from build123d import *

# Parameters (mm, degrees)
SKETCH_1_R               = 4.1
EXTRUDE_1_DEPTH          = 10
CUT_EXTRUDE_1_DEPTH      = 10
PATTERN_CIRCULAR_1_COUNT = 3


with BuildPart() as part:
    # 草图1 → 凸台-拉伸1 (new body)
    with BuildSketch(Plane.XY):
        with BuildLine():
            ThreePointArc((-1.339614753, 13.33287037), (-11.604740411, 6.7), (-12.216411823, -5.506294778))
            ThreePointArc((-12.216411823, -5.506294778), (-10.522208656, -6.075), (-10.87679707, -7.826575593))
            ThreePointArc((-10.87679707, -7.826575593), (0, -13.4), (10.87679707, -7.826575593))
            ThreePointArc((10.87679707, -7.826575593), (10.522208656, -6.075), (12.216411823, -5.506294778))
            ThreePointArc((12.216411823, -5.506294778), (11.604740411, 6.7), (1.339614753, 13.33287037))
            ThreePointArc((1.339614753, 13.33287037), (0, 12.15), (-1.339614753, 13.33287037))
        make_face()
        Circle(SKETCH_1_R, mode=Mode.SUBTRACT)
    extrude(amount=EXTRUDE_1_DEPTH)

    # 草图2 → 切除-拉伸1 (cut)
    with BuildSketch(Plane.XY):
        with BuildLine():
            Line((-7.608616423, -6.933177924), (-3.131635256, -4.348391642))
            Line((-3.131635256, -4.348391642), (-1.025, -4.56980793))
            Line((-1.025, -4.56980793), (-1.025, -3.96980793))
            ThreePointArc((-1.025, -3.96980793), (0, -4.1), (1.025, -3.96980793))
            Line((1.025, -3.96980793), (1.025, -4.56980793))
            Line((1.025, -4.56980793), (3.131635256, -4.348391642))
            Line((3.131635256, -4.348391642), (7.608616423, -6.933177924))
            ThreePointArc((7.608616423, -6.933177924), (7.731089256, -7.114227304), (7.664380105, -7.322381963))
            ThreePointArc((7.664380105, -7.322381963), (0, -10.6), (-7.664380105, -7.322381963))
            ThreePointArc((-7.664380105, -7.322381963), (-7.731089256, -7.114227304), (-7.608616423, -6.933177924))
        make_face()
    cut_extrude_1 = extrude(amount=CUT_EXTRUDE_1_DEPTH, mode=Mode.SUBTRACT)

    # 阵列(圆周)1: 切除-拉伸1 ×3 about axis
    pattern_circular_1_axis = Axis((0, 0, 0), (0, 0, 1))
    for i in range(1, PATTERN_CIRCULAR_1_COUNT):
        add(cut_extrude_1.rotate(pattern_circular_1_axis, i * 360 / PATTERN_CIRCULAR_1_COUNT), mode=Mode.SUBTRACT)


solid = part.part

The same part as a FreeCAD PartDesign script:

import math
import FreeCAD as App
import Part
import Sketcher
from FreeCAD import Vector
Q = App.Units.Quantity

doc = App.newDocument("Part")
body = doc.addObject("PartDesign::Body", "Body")

sketch1 = body.newObject("Sketcher::SketchObject", "Sketch")
sketch1.AttachmentSupport = (doc.getObject("XY_Plane"), [""])
sketch1.MapMode = "FlatFace"
sketch1.addGeometry([
    Part.ArcOfCircle(Part.Circle(Vector(0, 0, 0), Vector(0, 0, 1), 13.4), math.radians(95.737515), math.radians(204.262485)),
    Part.ArcOfCircle(Part.Circle(Vector(-11.691343, -6.75, 0), Vector(0, 0, 1), 1.35), math.radians(-52.888553), math.radians(112.888553)),
    Part.ArcOfCircle(Part.Circle(Vector(0, 0, 0), Vector(0, 0, 1), 13.4), math.radians(-144.262485), math.radians(-35.737515)),
    Part.ArcOfCircle(Part.Circle(Vector(11.691343, -6.75, 0), Vector(0, 0, 1), 1.35), math.radians(67.111447), math.radians(232.888553)),
    Part.ArcOfCircle(Part.Circle(Vector(0, 0, 0), Vector(0, 0, 1), 13.4), math.radians(-24.262485), math.radians(84.262485)),
    Part.ArcOfCircle(Part.Circle(Vector(0, 13.5, 0), Vector(0, 0, 1), 1.35), math.radians(-172.888553), math.radians(-7.111447)),
    Part.Circle(Vector(0, 0, 0), Vector(0, 0, 1), 4.1),
], False)
sketch1.addConstraint([
    Sketcher.Constraint("Coincident", 0, 2, 1, 2),
    Sketcher.Constraint("Coincident", 1, 1, 2, 1),
    Sketcher.Constraint("Coincident", 2, 2, 3, 2),
    Sketcher.Constraint("Coincident", 3, 1, 4, 1),
    Sketcher.Constraint("Coincident", 4, 2, 5, 2),
    Sketcher.Constraint("Coincident", 5, 1, 0, 1),
    Sketcher.Constraint("Coincident", 0, 3, -1, 1),
    Sketcher.Constraint("Coincident", 2, 3, -1, 1),
    Sketcher.Constraint("Coincident", 4, 3, -1, 1),
    Sketcher.Constraint("Coincident", 6, 3, -1, 1),
    Sketcher.Constraint("Equal", 0, 2),
    Sketcher.Constraint("Equal", 1, 3),
    Sketcher.Constraint("Equal", 2, 4),
    Sketcher.Constraint("Equal", 3, 5),
    Sketcher.Constraint("Symmetric", 1, 3, 3, 3, -2),
    Sketcher.Constraint("PointOnObject", 5, 3, -2),
    Sketcher.Constraint("Diameter", 6, 8.2),
    Sketcher.Constraint("Radius", 0, 13.4),
    Sketcher.Constraint("Radius", 1, 1.35),
    Sketcher.Constraint("DistanceY", -1, 1, 5, 3, 13.5),
    Sketcher.Constraint("DistanceY", 1, 3, -1, 1, 6.75),
    Sketcher.Constraint("DistanceX", 0, 2, -1, 1, 12.216412),
])
pad1 = body.newObject("PartDesign::Pad", "Pad")
pad1.Profile = sketch1
pad1.Length = 10

sketch2 = body.newObject("Sketcher::SketchObject", "Sketch001")
sketch2.AttachmentSupport = (doc.getObject("XY_Plane"), [""])
sketch2.MapMode = "FlatFace"
sketch2.addGeometry([
    Part.LineSegment(Vector(-3.131635, -4.348392, 0), Vector(-7.608616, -6.933178, 0)),
    Part.ArcOfCircle(Part.Circle(Vector(-7.483616, -7.149684, 0), Vector(0, 0, 1), 0.25), math.radians(120), math.radians(223.692736)),
    Part.ArcOfCircle(Part.Circle(Vector(0, 0, 0), Vector(0, 0, 1), 10.6), math.radians(-136.307264), math.radians(-43.692736)),
    Part.ArcOfCircle(Part.Circle(Vector(7.483616, -7.149684, 0), Vector(0, 0, 1), 0.25), math.radians(-43.692736), math.radians(60)),
    Part.LineSegment(Vector(7.608616, -6.933178, 0), Vector(3.131635, -4.348392, 0)),
    Part.LineSegment(Vector(3.131635, -4.348392, 0), Vector(1.025, -4.569808, 0)),
    Part.LineSegment(Vector(1.025, -4.569808, 0), Vector(1.025, -3.969808, 0)),
    Part.ArcOfCircle(Part.Circle(Vector(0, 0, 0), Vector(0, 0, 1), 4.1), math.radians(-104.477512), math.radians(-75.522488)),
    Part.LineSegment(Vector(-1.025, -3.969808, 0), Vector(-1.025, -4.569808, 0)),
    Part.LineSegment(Vector(-1.025, -4.569808, 0), Vector(-3.131635, -4.348392, 0)),
], False)
sketch2.addConstraint([
    Sketcher.Constraint("Tangent", 0, 2, 1, 1),
    Sketcher.Constraint("Tangent", 1, 2, 2, 1),
    Sketcher.Constraint("Tangent", 2, 2, 3, 1),
    Sketcher.Constraint("Tangent", 3, 2, 4, 1),
    Sketcher.Constraint("Coincident", 4, 2, 5, 1),
    Sketcher.Constraint("Coincident", 5, 2, 6, 1),
    Sketcher.Constraint("Coincident", 6, 2, 7, 2),
    Sketcher.Constraint("Coincident", 7, 1, 8, 1),
    Sketcher.Constraint("Coincident", 8, 2, 9, 1),
    Sketcher.Constraint("Coincident", 9, 2, 0, 1),
    Sketcher.Constraint("Vertical", 6),
    Sketcher.Constraint("Vertical", 8),
    Sketcher.Constraint("Coincident", 2, 3, -1, 1),
    Sketcher.Constraint("Coincident", 7, 3, -1, 1),
    Sketcher.Constraint("Equal", 1, 3),
    Sketcher.Constraint("Symmetric", 0, 2, 3, 2, -2),
    Sketcher.Constraint("Symmetric", 5, 2, 8, 2, -2),
    Sketcher.Constraint("Horizontal", 4, 2, 9, 2),
    Sketcher.Constraint("Radius", 2, 10.6),
    Sketcher.Constraint("Radius", 7, 4.1),
    Sketcher.Constraint("Angle", 0, Q("-150 deg")),
    Sketcher.Constraint("Angle", 5, Q("-174 deg")),
    Sketcher.Constraint("Radius", 1, 0.25),
    Sketcher.Constraint("DistanceY", 6, 1, 6, 2, 0.6),
    Sketcher.Constraint("DistanceX", 7, 1, 6, 2, 2.05),
    Sketcher.Constraint("Distance", 5, 2.118239),
])
pocket1 = body.newObject("PartDesign::Pocket", "Pocket")
pocket1.Profile = sketch2
pocket1.Length = 10
pocket1.Reversed = True
doc.recompute()

polarpattern = body.newObject("PartDesign::PolarPattern", "PolarPattern")
polarpattern.Originals = [pocket1]
polarpattern.Axis = (doc.getObject("Z_Axis"), [""])
polarpattern.Angle = 360
polarpattern.Occurrences = 3
body.Tip = polarpattern

doc.recompute()
